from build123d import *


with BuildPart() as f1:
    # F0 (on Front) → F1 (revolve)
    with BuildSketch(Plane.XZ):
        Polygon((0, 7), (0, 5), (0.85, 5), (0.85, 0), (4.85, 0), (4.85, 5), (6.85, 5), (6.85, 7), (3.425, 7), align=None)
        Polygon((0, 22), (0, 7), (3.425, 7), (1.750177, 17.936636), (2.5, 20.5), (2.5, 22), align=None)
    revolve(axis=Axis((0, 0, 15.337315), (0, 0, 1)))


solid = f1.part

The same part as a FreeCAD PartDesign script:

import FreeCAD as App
import Part
import Sketcher
Q = App.Units.Quantity

doc = App.newDocument("Part")
body = doc.addObject("PartDesign::Body", "Body")

# Sketch on XZ plane
sketch1 = body.newObject("Sketcher::SketchObject", "Sketch")
sketch1.AttachmentSupport = (doc.getObject("XZ_Plane"), [""])
sketch1.MapMode = "FlatFace"
sketch1.addGeometry([
    Part.LineSegment(App.Vector(0, 5, 0), App.Vector(0.85, 5, 0)),  # 0
    Part.LineSegment(App.Vector(0.85, 5, 0), App.Vector(0.85, 0, 0)),  # 1
    Part.LineSegment(App.Vector(0.85, 0, 0), App.Vector(4.85, 0, 0)),  # 2
    Part.LineSegment(App.Vector(4.85, 0, 0), App.Vector(4.85, 5, 0)),  # 3
    Part.LineSegment(App.Vector(4.85, 5, 0), App.Vector(6.85, 5, 0)),  # 4
    Part.LineSegment(App.Vector(6.85, 5, 0), App.Vector(6.85, 7, 0)),  # 5
    Part.LineSegment(App.Vector(6.85, 7, 0), App.Vector(3.425, 7, 0)),  # 6
    Part.LineSegment(App.Vector(3.425, 7, 0), App.Vector(1.750177, 17.936636, 0)),  # 7
    Part.LineSegment(App.Vector(1.750177, 17.936636, 0), App.Vector(2.5, 20.5, 0)),  # 8
    Part.LineSegment(App.Vector(2.5, 20.5, 0), App.Vector(2.5, 22, 0)),  # 9
    Part.LineSegment(App.Vector(2.5, 22, 0), App.Vector(0, 22, 0)),  # 10
    Part.LineSegment(App.Vector(0, 22, 0), App.Vector(0, 5, 0)),  # 11
], False)
sketch1.addConstraint([
    Sketcher.Constraint("Coincident", 0, 2, 1, 1),
    Sketcher.Constraint("Coincident", 1, 2, 2, 1),
    Sketcher.Constraint("Coincident", 2, 2, 3, 1),
    Sketcher.Constraint("Coincident", 3, 2, 4, 1),
    Sketcher.Constraint("Coincident", 4, 2, 5, 1),
    Sketcher.Constraint("Coincident", 5, 2, 6, 1),
    Sketcher.Constraint("Coincident", 6, 2, 7, 1),
    Sketcher.Constraint("Coincident", 7, 2, 8, 1),
    Sketcher.Constraint("Coincident", 8, 2, 9, 1),
    Sketcher.Constraint("Coincident", 9, 2, 10, 1),
    Sketcher.Constraint("Coincident", 10, 2, 11, 1),
    Sketcher.Constraint("Coincident", 11, 2, 0, 1),
    Sketcher.Constraint("Horizontal", 0),
    Sketcher.Constraint("Vertical", 1),
    Sketcher.Constraint("Horizontal", 2),
    Sketcher.Constraint("Vertical", 3),
    Sketcher.Constraint("Horizontal", 4),
    Sketcher.Constraint("Vertical", 5),
    Sketcher.Constraint("Horizontal", 6),
    Sketcher.Constraint("Vertical", 9),
    Sketcher.Constraint("Horizontal", 10),
    Sketcher.Constraint("Vertical", 11),
    Sketcher.Constraint("PointOnObject", 1, 2, -1),
    Sketcher.Constraint("PointOnObject", 10, 2, -2),
    Sketcher.Constraint("Horizontal", 0, 2, 3, 2),
    Sketcher.Constraint("Equal", 4, 5),
    Sketcher.Constraint("DistanceX", 2, 1, 2, 2, Q("4 mm")),
    Sketcher.Constraint("DistanceX", 4, 1, 4, 2, Q("2 mm")),
    Sketcher.Constraint("DistanceY", 1, 2, 1, 1, Q("5 mm")),
    Sketcher.Constraint("DistanceY", 11, 2, 11, 1, Q("17 mm")),
    Sketcher.Constraint("DistanceX", 10, 2, 10, 1, Q("2.5 mm")),
    Sketcher.Constraint("DistanceY", 9, 1, 9, 2, Q("1.5 mm")),
    Sketcher.Constraint("DistanceX", 0, 1, 0, 2, Q("0.85 mm")),
    Sketcher.Constraint("DistanceX", 6, 2, 6, 1, Q("3.425 mm")),
    Sketcher.Constraint("Distance", 8, Q("2.670781 mm")),
    Sketcher.Constraint("Distance", 7, Q("11.064133 mm")),
])
revolution = body.newObject("PartDesign::Revolution", "Revolution")
revolution.Profile = sketch1
revolution.ReferenceAxis = (sketch1, ["V_Axis"])
revolution.Angle = 360

doc.recompute()
